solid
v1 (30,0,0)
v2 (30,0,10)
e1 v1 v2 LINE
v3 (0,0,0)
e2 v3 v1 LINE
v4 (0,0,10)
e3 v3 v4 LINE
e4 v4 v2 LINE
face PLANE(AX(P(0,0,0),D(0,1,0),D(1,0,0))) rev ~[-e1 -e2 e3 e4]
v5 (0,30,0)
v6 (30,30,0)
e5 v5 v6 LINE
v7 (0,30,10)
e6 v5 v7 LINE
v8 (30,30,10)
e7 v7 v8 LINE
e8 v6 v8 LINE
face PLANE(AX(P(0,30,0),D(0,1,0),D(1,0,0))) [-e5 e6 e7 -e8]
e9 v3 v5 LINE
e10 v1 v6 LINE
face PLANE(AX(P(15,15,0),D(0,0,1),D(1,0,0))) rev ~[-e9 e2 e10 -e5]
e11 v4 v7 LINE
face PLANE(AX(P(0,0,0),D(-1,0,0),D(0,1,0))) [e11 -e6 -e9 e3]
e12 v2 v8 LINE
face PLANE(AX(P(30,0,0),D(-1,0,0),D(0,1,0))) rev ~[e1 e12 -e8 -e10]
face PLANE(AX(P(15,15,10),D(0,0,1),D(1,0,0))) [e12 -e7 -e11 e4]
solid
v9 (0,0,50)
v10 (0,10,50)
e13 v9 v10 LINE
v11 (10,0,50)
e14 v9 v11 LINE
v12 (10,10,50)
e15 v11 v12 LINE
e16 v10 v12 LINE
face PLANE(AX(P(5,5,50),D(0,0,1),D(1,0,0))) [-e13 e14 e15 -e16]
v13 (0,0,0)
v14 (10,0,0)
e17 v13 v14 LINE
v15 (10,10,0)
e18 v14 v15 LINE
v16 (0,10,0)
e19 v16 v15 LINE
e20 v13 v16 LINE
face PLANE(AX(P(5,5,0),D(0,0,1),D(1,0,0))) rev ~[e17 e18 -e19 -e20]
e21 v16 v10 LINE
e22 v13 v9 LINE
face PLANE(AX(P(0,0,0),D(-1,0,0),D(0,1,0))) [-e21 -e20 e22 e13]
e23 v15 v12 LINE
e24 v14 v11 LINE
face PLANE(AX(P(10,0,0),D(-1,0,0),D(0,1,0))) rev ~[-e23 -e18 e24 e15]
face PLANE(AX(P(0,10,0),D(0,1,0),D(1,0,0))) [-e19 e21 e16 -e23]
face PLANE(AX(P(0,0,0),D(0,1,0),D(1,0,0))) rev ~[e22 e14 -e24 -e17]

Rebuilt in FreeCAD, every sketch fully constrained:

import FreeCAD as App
import Part
import Sketcher
Q = App.Units.Quantity


def add_polygon(sketch, points):
    """Adds a closed chain of lines whose ends are joined by coincident constraints."""
    first, n = sketch.GeometryCount, len(points)
    for a, b in zip(points, points[1:] + points[:1]):
        sketch.addGeometry(Part.LineSegment(App.Vector(*a, 0), App.Vector(*b, 0)), False)
    for i in range(n):
        sketch.addConstraint(Sketcher.Constraint("Coincident", first + i, 2, first + (i + 1) % n, 1))

doc = App.newDocument("Part")
body = doc.addObject("PartDesign::Body", "Body")

# Sketch on XY plane
sketch1 = doc.addObject("Sketcher::SketchObject", "Sketch")
body.addObject(sketch1)
sketch1.AttachmentSupport = (doc.XY_Plane, [""])
sketch1.MapMode = "FlatFace"
add_polygon(sketch1, [(0, 30), (0, 0), (30, 0), (30, 30)])  # lines 0-3
sketch1.addConstraint(Sketcher.Constraint("Vertical", 0))
sketch1.addConstraint(Sketcher.Constraint("Horizontal", 1))
sketch1.addConstraint(Sketcher.Constraint("Vertical", 2))
sketch1.addConstraint(Sketcher.Constraint("Horizontal", 3))
sketch1.addConstraint(Sketcher.Constraint("Coincident", 0, 2, -1, 1))
sketch1.addConstraint(Sketcher.Constraint("Equal", 3, 0))
sketch1.addConstraint(Sketcher.Constraint("DistanceX", 1, 1, 1, 2, Q("30 mm")))
pad1 = doc.addObject("PartDesign::Pad", "Pad")
body.addObject(pad1)
pad1.Profile = sketch1
pad1.Length = 10
body2 = doc.addObject("PartDesign::Body", "Body001")

# Sketch on XY plane
sketch2 = doc.addObject("Sketcher::SketchObject", "Sketch001")
body2.addObject(sketch2)
sketch2.AttachmentSupport = (doc.getObject("XY_Plane001"), [""])
sketch2.MapMode = "FlatFace"
add_polygon(sketch2, [(0, 10), (0, 0), (10, 0), (10, 10)])  # lines 0-3
sketch2.addConstraint(Sketcher.Constraint("Vertical", 0))
sketch2.addConstraint(Sketcher.Constraint("Horizontal", 1))
sketch2.addConstraint(Sketcher.Constraint("Vertical", 2))
sketch2.addConstraint(Sketcher.Constraint("Horizontal", 3))
sketch2.addConstraint(Sketcher.Constraint("Coincident", 0, 2, -1, 1))
sketch2.addConstraint(Sketcher.Constraint("Equal", 3, 0))
sketch2.addConstraint(Sketcher.Constraint("DistanceX", 1, 1, 1, 2, Q("10 mm")))
pad2 = doc.addObject("PartDesign::Pad", "Pad001")
body2.addObject(pad2)
pad2.Profile = sketch2
pad2.Length = 50

doc.recompute()
